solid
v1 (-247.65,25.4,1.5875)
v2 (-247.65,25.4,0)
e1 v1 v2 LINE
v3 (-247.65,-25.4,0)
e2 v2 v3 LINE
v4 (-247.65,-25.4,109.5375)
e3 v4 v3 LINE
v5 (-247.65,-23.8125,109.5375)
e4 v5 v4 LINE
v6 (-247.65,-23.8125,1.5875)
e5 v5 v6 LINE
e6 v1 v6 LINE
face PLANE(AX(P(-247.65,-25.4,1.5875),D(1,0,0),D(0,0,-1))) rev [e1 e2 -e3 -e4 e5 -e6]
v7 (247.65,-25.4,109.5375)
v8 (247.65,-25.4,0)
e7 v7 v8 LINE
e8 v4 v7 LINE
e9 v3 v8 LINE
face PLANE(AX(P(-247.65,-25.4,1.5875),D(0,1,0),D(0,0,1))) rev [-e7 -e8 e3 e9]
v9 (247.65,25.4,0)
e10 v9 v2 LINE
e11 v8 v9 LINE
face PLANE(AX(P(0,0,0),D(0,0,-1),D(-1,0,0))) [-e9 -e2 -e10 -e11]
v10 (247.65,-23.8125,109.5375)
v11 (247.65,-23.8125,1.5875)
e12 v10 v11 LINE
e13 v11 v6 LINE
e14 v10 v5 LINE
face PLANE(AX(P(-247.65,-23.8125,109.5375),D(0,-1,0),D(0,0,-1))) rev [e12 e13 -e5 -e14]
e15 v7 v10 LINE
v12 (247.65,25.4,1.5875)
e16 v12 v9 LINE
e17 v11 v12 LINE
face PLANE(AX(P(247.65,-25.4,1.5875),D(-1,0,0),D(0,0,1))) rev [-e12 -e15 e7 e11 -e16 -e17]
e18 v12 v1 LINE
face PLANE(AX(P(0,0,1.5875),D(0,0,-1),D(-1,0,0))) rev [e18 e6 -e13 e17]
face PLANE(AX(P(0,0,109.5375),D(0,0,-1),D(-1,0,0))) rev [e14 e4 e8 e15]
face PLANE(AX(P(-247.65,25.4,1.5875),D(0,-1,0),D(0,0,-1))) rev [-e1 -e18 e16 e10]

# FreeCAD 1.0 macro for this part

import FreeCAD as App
import Part
import Sketcher

V = App.Vector
Q = App.Units.Quantity

doc = App.newDocument("Part")
body = doc.addObject("PartDesign::Body", "Body")

# Sketch on XY plane
sketch1 = doc.addObject("Sketcher::SketchObject", "Sketch")
body.addObject(sketch1)
sketch1.AttachmentSupport = (doc.XY_Plane, [""])
sketch1.MapMode = "FlatFace"
sketch1.addGeometry([
    Part.LineSegment(V(-248, 25, 0), V(-248, -25, 0)),
    Part.LineSegment(V(-248, -25, 0), V(248, -25, 0)),
    Part.LineSegment(V(248, -25, 0), V(248, 25, 0)),
    Part.LineSegment(V(248, 25, 0), V(-248, 25, 0)),
], False)
sketch1.addConstraint([
    Sketcher.Constraint("Coincident", 0, 2, 1, 1),
    Sketcher.Constraint("Coincident", 1, 2, 2, 1),
    Sketcher.Constraint("Coincident", 2, 2, 3, 1),
    Sketcher.Constraint("Coincident", 3, 2, 0, 1),
    Sketcher.Constraint("Vertical", 0),
    Sketcher.Constraint("Horizontal", 1),
    Sketcher.Constraint("Vertical", 2),
    Sketcher.Constraint("Horizontal", 3),
    Sketcher.Constraint("Symmetric", 0, 2, 2, 2, -1, 1),
    Sketcher.Constraint("DistanceY", 0, 2, 0, 1, Q("2 in")),
    Sketcher.Constraint("DistanceX", 1, 1, 1, 2, Q("19.5 in")),
])
pad1 = doc.addObject("PartDesign::Pad", "Pad")
body.addObject(pad1)
pad1.Profile = sketch1
pad1.Length = Q("0.0625 in")

# Sketch on XY plane
sketch2 = doc.addObject("Sketcher::SketchObject", "Sketch001")
body.addObject(sketch2)
sketch2.AttachmentSupport = (doc.XY_Plane, [""])
sketch2.MapMode = "FlatFace"
sketch2.AttachmentOffset = App.Placement(V(0, 0, 0.0625 * 25.4), App.Rotation())
sketch2.addGeometry([
    Part.LineSegment(V(-247.7, -23.8, 0), V(-247.7, -25.4, 0)),
    Part.LineSegment(V(-247.7, -25.4, 0), V(247.7, -25.4, 0)),
    Part.LineSegment(V(247.7, -25.4, 0), V(247.7, -23.8, 0)),
    Part.LineSegment(V(247.7, -23.8, 0), V(-247.7, -23.8, 0)),
], False)
sketch2.addConstraint([
    Sketcher.Constraint("Coincident", 0, 2, 1, 1),
    Sketcher.Constraint("Coincident", 1, 2, 2, 1),
    Sketcher.Constraint("Coincident", 2, 2, 3, 1),
    Sketcher.Constraint("Coincident", 3, 2, 0, 1),
    Sketcher.Constraint("Vertical", 0),
    Sketcher.Constraint("Horizontal", 1),
    Sketcher.Constraint("Vertical", 2),
    Sketcher.Constraint("Horizontal", 3),
    Sketcher.Constraint("DistanceX", 1, 1, 1, 2, Q("19.5 in")),
    Sketcher.Constraint("DistanceY", 0, 2, -1, 1, Q("1 in")),
    Sketcher.Constraint("DistanceY", 0, 2, 0, 1, Q("0.0625 in")),
    Sketcher.Constraint("DistanceX", 0, 2, -1, 1, Q("9.75 in")),
])
pad2 = doc.addObject("PartDesign::Pad", "Pad001")
body.addObject(pad2)
pad2.Profile = sketch2
pad2.Length = Q("4.25 in")

doc.recompute()
